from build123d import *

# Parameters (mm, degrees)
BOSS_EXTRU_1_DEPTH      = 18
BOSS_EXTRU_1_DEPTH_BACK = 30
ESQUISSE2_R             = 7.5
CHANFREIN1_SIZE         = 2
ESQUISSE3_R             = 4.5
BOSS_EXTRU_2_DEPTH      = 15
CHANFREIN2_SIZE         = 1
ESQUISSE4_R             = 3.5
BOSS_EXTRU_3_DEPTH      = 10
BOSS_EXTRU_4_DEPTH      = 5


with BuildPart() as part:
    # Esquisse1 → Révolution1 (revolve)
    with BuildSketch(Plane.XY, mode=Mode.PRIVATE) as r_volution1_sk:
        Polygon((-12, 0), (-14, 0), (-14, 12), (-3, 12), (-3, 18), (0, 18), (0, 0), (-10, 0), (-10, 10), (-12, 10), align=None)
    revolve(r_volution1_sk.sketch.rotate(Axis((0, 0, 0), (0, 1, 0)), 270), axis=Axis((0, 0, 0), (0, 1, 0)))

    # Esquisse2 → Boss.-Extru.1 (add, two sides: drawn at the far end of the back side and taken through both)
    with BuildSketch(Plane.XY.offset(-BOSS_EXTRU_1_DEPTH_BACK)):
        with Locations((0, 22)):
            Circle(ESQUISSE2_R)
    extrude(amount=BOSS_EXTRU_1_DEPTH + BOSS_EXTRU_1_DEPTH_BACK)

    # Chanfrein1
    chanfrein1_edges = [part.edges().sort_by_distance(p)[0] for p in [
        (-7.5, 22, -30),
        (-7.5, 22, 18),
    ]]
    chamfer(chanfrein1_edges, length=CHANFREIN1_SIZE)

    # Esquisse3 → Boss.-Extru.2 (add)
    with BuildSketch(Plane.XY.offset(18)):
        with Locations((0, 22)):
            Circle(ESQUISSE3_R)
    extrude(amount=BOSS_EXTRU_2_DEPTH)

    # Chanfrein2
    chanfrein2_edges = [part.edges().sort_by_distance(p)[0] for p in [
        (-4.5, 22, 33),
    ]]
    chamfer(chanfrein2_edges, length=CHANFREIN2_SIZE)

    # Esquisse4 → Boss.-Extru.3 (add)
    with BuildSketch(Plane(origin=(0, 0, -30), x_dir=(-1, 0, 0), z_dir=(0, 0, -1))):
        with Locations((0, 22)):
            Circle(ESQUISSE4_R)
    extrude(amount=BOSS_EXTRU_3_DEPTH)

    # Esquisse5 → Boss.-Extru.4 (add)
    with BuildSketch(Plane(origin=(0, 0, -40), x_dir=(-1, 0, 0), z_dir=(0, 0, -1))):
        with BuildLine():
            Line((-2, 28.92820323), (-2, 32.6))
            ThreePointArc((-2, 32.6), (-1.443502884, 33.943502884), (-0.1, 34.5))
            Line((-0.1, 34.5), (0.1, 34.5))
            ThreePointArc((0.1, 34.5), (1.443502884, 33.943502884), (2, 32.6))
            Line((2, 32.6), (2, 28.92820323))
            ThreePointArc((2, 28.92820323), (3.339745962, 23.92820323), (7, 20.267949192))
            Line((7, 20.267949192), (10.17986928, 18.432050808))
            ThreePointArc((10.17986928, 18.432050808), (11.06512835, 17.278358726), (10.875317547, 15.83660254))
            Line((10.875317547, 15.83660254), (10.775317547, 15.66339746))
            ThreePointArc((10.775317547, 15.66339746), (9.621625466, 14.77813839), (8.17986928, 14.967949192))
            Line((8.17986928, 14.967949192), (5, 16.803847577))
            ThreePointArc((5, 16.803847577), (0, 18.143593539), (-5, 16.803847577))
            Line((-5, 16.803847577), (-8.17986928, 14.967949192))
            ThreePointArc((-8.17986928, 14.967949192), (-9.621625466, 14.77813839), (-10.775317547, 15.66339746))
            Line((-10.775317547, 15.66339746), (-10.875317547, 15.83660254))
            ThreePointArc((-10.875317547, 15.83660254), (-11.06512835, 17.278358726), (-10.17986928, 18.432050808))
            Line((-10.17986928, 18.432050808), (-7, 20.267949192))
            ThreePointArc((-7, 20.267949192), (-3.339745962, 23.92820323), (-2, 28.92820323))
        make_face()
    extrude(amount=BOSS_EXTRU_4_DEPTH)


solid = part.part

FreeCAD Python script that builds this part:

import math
import FreeCAD as App
import Part
import Sketcher

V = App.Vector
Q = App.Units.Quantity


def edges_at(feature, points):
    """Names of the edges that pass closest to the given points."""
    edges = feature.Shape.Edges
    near = lambda p: min(range(len(edges)), key=lambda i: edges[i].distToShape(Part.Vertex(*p))[0])
    return sorted({f"Edge{near(p) + 1}" for p in points})


def add_polygon(sketch, points):
    """Adds a closed chain of lines whose ends are joined by coincident constraints."""
    first, n = sketch.GeometryCount, len(points)
    for a, b in zip(points, points[1:] + points[:1]):
        sketch.addGeometry(Part.LineSegment(App.Vector(*a, 0), App.Vector(*b, 0)), False)
    for i in range(n):
        sketch.addConstraint(Sketcher.Constraint("Coincident", first + i, 2, first + (i + 1) % n, 1))

doc = App.newDocument("Part")
body = doc.addObject("PartDesign::Body", "Body")

# Sketch on XY plane
sketch1 = body.newObject("Sketcher::SketchObject", "Sketch")
sketch1.AttachmentSupport = (doc.getObject("XY_Plane"), [""])
sketch1.MapMode = "FlatFace"
add_polygon(sketch1, [(-14, 0), (-12, 0), (-12, 10), (-10, 10), (-10, 0), (0, 0), (0, 18), (-3, 18), (-3, 12), (-14, 12)])  # lines 0-9
sketch1.addConstraint(Sketcher.Constraint("Horizontal", 0))
sketch1.addConstraint(Sketcher.Constraint("Vertical", 1))
sketch1.addConstraint(Sketcher.Constraint("Horizontal", 2))
sketch1.addConstraint(Sketcher.Constraint("Vertical", 3))
sketch1.addConstraint(Sketcher.Constraint("Horizontal", 4))
sketch1.addConstraint(Sketcher.Constraint("Vertical", 5))
sketch1.addConstraint(Sketcher.Constraint("Horizontal", 6))
sketch1.addConstraint(Sketcher.Constraint("Vertical", 7))
sketch1.addConstraint(Sketcher.Constraint("Horizontal", 8))
sketch1.addConstraint(Sketcher.Constraint("Vertical", 9))
sketch1.addConstraint(Sketcher.Constraint("Coincident", 4, 2, -1, 1))
sketch1.addConstraint(Sketcher.Constraint("PointOnObject", 0, 2, -1))
sketch1.addConstraint(Sketcher.Constraint("Equal", 0, 2))
sketch1.addConstraint(Sketcher.Constraint("Equal", 4, 1))
sketch1.addConstraint(Sketcher.Constraint("DistanceX", 0, 1, 0, 2, Q("2 mm")))
sketch1.addConstraint(Sketcher.Constraint("DistanceX", 4, 1, 4, 2, Q("10 mm")))
sketch1.addConstraint(Sketcher.Constraint("DistanceX", 6, 2, 6, 1, Q("3 mm")))
sketch1.addConstraint(Sketcher.Constraint("DistanceY", 5, 1, 5, 2, Q("18 mm")))
sketch1.addConstraint(Sketcher.Constraint("DistanceY", 7, 2, 7, 1, Q("6 mm")))
revolution = body.newObject("PartDesign::Revolution", "Revolution")
revolution.Profile = sketch1
revolution.ReferenceAxis = (sketch1, ["V_Axis"])
revolution.Angle = 360

# Sketch on XY plane
sketch2 = body.newObject("Sketcher::SketchObject", "Sketch001")
sketch2.AttachmentSupport = (doc.getObject("XY_Plane"), [""])
sketch2.MapMode = "FlatFace"
sketch2.addGeometry(Part.Circle(V(0, 22, 0), V(0, 0, 1), 8), False)
sketch2.addConstraint(Sketcher.Constraint("PointOnObject", 0, 3, -2))
sketch2.addConstraint(Sketcher.Constraint("Diameter", 0, Q("15 mm")))
sketch2.addConstraint(Sketcher.Constraint("DistanceY", -1, 1, 0, 3, Q("22 mm")))
pad1 = body.newObject("PartDesign::Pad", "Pad")
pad1.Profile = sketch2
pad1.Type = "TwoLengths"
pad1.Length = 18
pad1.Length2 = 30
doc.recompute()

chamfer = body.newObject("PartDesign::Chamfer", "Chamfer")
chamfer.Base = (pad1, edges_at(pad1, [(-7.5, 22, -30), (-7.5, 22, 18)]))
chamfer.Size = 2

# Sketch on XY plane
sketch3 = body.newObject("Sketcher::SketchObject", "Sketch002")
sketch3.AttachmentSupport = (doc.getObject("XY_Plane"), [""])
sketch3.MapMode = "FlatFace"
sketch3.AttachmentOffset = App.Placement(V(0, 0, 18), App.Rotation())
sketch3.addGeometry(Part.Circle(V(0, 22, 0), V(0, 0, 1), 4.5), False)
sketch3.addConstraint(Sketcher.Constraint("PointOnObject", 0, 3, -2))
sketch3.addConstraint(Sketcher.Constraint("Diameter", 0, Q("9 mm")))
sketch3.addConstraint(Sketcher.Constraint("DistanceY", -1, 1, 0, 3, Q("22 mm")))
pad2 = body.newObject("PartDesign::Pad", "Pad001")
pad2.Profile = sketch3
pad2.Length = 15
doc.recompute()

chamfer2 = body.newObject("PartDesign::Chamfer", "Chamfer001")
chamfer2.Base = (pad2, edges_at(pad2, [(-4.5, 22, 33)]))
chamfer2.Size = 1

# Sketch on XY plane
sketch4 = body.newObject("Sketcher::SketchObject", "Sketch003")
sketch4.AttachmentSupport = (doc.getObject("XY_Plane"), [""])
sketch4.MapMode = "FlatFace"
sketch4.AttachmentOffset = App.Placement(V(0, 0, -30), App.Rotation())
sketch4.addGeometry(Part.Circle(V(0, 22, 0), V(0, 0, 1), 3.5), False)
sketch4.addConstraint(Sketcher.Constraint("PointOnObject", 0, 3, -2))
sketch4.addConstraint(Sketcher.Constraint("Diameter", 0, Q("7 mm")))
sketch4.addConstraint(Sketcher.Constraint("DistanceY", -1, 1, 0, 3, Q("22 mm")))
pad3 = body.newObject("PartDesign::Pad", "Pad002")
pad3.Profile = sketch4
pad3.Length = 10
pad3.Reversed = True

# Sketch on XY plane
sketch5 = body.newObject("Sketcher::SketchObject", "Sketch004")
sketch5.AttachmentSupport = (doc.getObject("XY_Plane"), [""])
sketch5.MapMode = "FlatFace"
sketch5.AttachmentOffset = App.Placement(V(0, 0, -40), App.Rotation())
sketch5.addGeometry(Part.LineSegment(V(2, 32.6, 0), V(2, 28.93, 0)), False)
sketch5.addGeometry(Part.ArcOfCircle(Part.Circle(V(12, 28.93, 0), V(0, 0, 1), 10), math.radians(180), math.radians(240)), False)
sketch5.addGeometry(Part.LineSegment(V(7, 20.27, 0), V(10.18, 18.43, 0)), False)
sketch5.addGeometry(Part.ArcOfCircle(Part.Circle(V(9.23, 16.79, 0), V(0, 0, 1), 1.9), math.radians(-30), math.radians(60)), False)
sketch5.addGeometry(Part.LineSegment(V(10.88, 15.84, 0), V(10.78, 15.66, 0)), False)
sketch5.addGeometry(Part.ArcOfCircle(Part.Circle(V(9.13, 16.61, 0), V(0, 0, 1), 1.9), math.radians(-120), math.radians(-30)), False)
sketch5.addGeometry(Part.LineSegment(V(8.18, 14.97, 0), V(5, 16.8, 0)), False)
sketch5.addGeometry(Part.ArcOfCircle(Part.Circle(V(0, 8.14, 0), V(0, 0, 1), 10), math.radians(60), math.radians(120)), False)
sketch5.addGeometry(Part.LineSegment(V(-5, 16.8, 0), V(-8.18, 14.97, 0)), False)
sketch5.addGeometry(Part.ArcOfCircle(Part.Circle(V(-9.13, 16.61, 0), V(0, 0, 1), 1.9), math.radians(-150), math.radians(-60)), False)
sketch5.addGeometry(Part.LineSegment(V(-10.78, 15.66, 0), V(-10.88, 15.84, 0)), False)
sketch5.addGeometry(Part.ArcOfCircle(Part.Circle(V(-9.23, 16.79, 0), V(0, 0, 1), 1.9), math.radians(120), math.radians(210)), False)
sketch5.addGeometry(Part.LineSegment(V(-10.18, 18.43, 0), V(-7, 20.27, 0)), False)
sketch5.addGeometry(Part.ArcOfCircle(Part.Circle(V(-12, 28.93, 0), V(0, 0, 1), 10), math.radians(-60), math.radians(0)), False)
sketch5.addGeometry(Part.LineSegment(V(-2, 28.93, 0), V(-2, 32.6, 0)), False)
sketch5.addGeometry(Part.ArcOfCircle(Part.Circle(V(-0.1, 32.6, 0), V(0, 0, 1), 1.9), math.radians(90), math.radians(180)), False)
sketch5.addGeometry(Part.LineSegment(V(-0.1, 34.5, 0), V(0.1, 34.5, 0)), False)
sketch5.addGeometry(Part.ArcOfCircle(Part.Circle(V(0.1, 32.6, 0), V(0, 0, 1), 1.9), math.radians(0), math.radians(90)), False)
sketch5.addConstraint(Sketcher.Constraint("Tangent", 0, 2, 1, 1))
sketch5.addConstraint(Sketcher.Constraint("Tangent", 1, 2, 2, 1))
sketch5.addConstraint(Sketcher.Constraint("Tangent", 2, 2, 3, 2))
sketch5.addConstraint(Sketcher.Constraint("Tangent", 3, 1, 4, 1))
sketch5.addConstraint(Sketcher.Constraint("Tangent", 4, 2, 5, 2))
sketch5.addConstraint(Sketcher.Constraint("Tangent", 5, 1, 6, 1))
sketch5.addConstraint(Sketcher.Constraint("Tangent", 6, 2, 7, 1))
sketch5.addConstraint(Sketcher.Constraint("Tangent", 7, 2, 8, 1))
sketch5.addConstraint(Sketcher.Constraint("Tangent", 8, 2, 9, 2))
sketch5.addConstraint(Sketcher.Constraint("Tangent", 9, 1, 10, 1))
sketch5.addConstraint(Sketcher.Constraint("Tangent", 10, 2, 11, 2))
sketch5.addConstraint(Sketcher.Constraint("Tangent", 11, 1, 12, 1))
sketch5.addConstraint(Sketcher.Constraint("Tangent", 12, 2, 13, 1))
sketch5.addConstraint(Sketcher.Constraint("Tangent", 13, 2, 14, 1))
sketch5.addConstraint(Sketcher.Constraint("Tangent", 14, 2, 15, 2))
sketch5.addConstraint(Sketcher.Constraint("Tangent", 15, 1, 16, 1))
sketch5.addConstraint(Sketcher.Constraint("Tangent", 16, 2, 17, 2))
sketch5.addConstraint(Sketcher.Constraint("Tangent", 17, 1, 0, 1))
sketch5.addConstraint(Sketcher.Constraint("Vertical", 0))
sketch5.addConstraint(Sketcher.Constraint("Vertical", 14))
sketch5.addConstraint(Sketcher.Constraint("Horizontal", 16))
sketch5.addConstraint(Sketcher.Constraint("Equal", 3, 5))
sketch5.addConstraint(Sketcher.Constraint("Equal", 1, 7))
sketch5.addConstraint(Sketcher.Constraint("Equal", 5, 9))
sketch5.addConstraint(Sketcher.Constraint("Equal", 9, 11))
sketch5.addConstraint(Sketcher.Constraint("Equal", 7, 13))
sketch5.addConstraint(Sketcher.Constraint("Equal", 11, 15))
sketch5.addConstraint(Sketcher.Constraint("Equal", 15, 17))
sketch5.addConstraint(Sketcher.Constraint("Symmetric", 5, 3, 9, 3, -2))
sketch5.addConstraint(Sketcher.Constraint("Symmetric", 3, 3, 11, 3, -2))
sketch5.addConstraint(Sketcher.Constraint("Symmetric", 1, 3, 13, 3, -2))
sketch5.addConstraint(Sketcher.Constraint("PointOnObject", 7, 3, -2))
sketch5.addConstraint(Sketcher.Constraint("Perpendicular", 2, 4))
sketch5.addConstraint(Sketcher.Constraint("Perpendicular", 4, 6))
sketch5.addConstraint(Sketcher.Constraint("Equal", 2, 6))
sketch5.addConstraint(Sketcher.Constraint("Radius", 1, Q("10 mm")))
sketch5.addConstraint(Sketcher.Constraint("Radius", 3, Q("1.9 mm")))
sketch5.addConstraint(Sketcher.Constraint("Angle", 2, Q("-30 deg")))
sketch5.addConstraint(Sketcher.Constraint("DistanceX", 16, 1, 16, 2, Q("0.2 mm")))
sketch5.addConstraint(Sketcher.Constraint("DistanceY", -1, 1, 15, 3, Q("32.6 mm")))
sketch5.addConstraint(Sketcher.Constraint("DistanceY", 8, 2, 12, 2, Q("5.3 mm")))
sketch5.addConstraint(Sketcher.Constraint("DistanceY", 0, 2, 0, 1, Q("3.671797 mm")))
pad4 = body.newObject("PartDesign::Pad", "Pad003")
pad4.Profile = sketch5
pad4.Length = 5
pad4.Reversed = True

doc.recompute()
